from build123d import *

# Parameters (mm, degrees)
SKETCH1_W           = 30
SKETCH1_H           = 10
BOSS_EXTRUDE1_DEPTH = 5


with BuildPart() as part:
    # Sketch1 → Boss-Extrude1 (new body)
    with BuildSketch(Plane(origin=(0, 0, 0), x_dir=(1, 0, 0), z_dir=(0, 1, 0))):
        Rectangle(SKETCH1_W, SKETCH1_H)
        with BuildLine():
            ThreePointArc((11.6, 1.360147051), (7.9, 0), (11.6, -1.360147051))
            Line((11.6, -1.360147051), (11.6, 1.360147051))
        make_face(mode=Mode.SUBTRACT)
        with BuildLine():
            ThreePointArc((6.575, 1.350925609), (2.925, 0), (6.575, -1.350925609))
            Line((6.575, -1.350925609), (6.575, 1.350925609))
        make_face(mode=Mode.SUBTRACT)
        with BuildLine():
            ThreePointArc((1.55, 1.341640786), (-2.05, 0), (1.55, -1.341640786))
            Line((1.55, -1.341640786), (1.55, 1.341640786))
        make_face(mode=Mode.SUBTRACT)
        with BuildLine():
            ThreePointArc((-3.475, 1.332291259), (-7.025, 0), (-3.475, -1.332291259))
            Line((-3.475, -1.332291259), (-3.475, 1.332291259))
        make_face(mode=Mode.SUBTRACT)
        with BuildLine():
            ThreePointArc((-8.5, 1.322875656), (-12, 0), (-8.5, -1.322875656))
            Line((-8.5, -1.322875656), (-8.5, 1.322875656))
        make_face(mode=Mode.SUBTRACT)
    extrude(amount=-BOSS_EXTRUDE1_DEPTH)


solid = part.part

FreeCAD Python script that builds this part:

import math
import FreeCAD as App
import Part
import Sketcher


def add_polygon(sketch, points):
    """Adds a closed chain of lines whose ends are joined by coincident constraints."""
    first, n = sketch.GeometryCount, len(points)
    for a, b in zip(points, points[1:] + points[:1]):
        sketch.addGeometry(Part.LineSegment(App.Vector(*a, 0), App.Vector(*b, 0)), False)
    for i in range(n):
        sketch.addConstraint(Sketcher.Constraint("Coincident", first + i, 2, first + (i + 1) % n, 1))

doc = App.newDocument("Part")
body = doc.addObject("PartDesign::Body", "Body")

# Sketch on XZ plane
sketch1 = body.newObject("Sketcher::SketchObject", "Sketch")
sketch1.AttachmentSupport = (doc.getObject("XZ_Plane"), [""])
sketch1.MapMode = "FlatFace"
add_polygon(sketch1, [(-15, -5), (-15, 5), (15, 5), (15, -5)])  # lines 0-3
sketch1.addGeometry(Part.ArcOfCircle(Part.Circle(App.Vector(-10, 0, 0), App.Vector(0, 0, 1), 2), math.radians(41), math.radians(319)), False)  # 4
sketch1.addGeometry(Part.LineSegment(App.Vector(-8.5, -1.3, 0), App.Vector(-8.5, 1.3, 0)), False)  # 5
sketch1.addGeometry(Part.ArcOfCircle(Part.Circle(App.Vector(-5, 0, 0), App.Vector(0, 0, 1), 2), math.radians(41), math.radians(319)), False)  # 6
sketch1.addGeometry(Part.LineSegment(App.Vector(-3.5, -1.3, 0), App.Vector(-3.5, 1.3, 0)), False)  # 7
sketch1.addGeometry(Part.ArcOfCircle(Part.Circle(App.Vector(0, 0, 0), App.Vector(0, 0, 1), 2), math.radians(41), math.radians(319)), False)  # 8
sketch1.addGeometry(Part.LineSegment(App.Vector(1.6, -1.3, 0), App.Vector(1.6, 1.3, 0)), False)  # 9
sketch1.addGeometry(Part.ArcOfCircle(Part.Circle(App.Vector(5, 0, 0), App.Vector(0, 0, 1), 2.1), math.radians(41), math.radians(319)), False)  # 10
sketch1.addGeometry(Part.LineSegment(App.Vector(6.6, -1.4, 0), App.Vector(6.6, 1.4, 0)), False)  # 11
sketch1.addGeometry(Part.ArcOfCircle(Part.Circle(App.Vector(10, 0, 0), App.Vector(0, 0, 1), 2.1), math.radians(40), math.radians(320)), False)  # 12
sketch1.addGeometry(Part.LineSegment(App.Vector(11.6, -1.4, 0), App.Vector(11.6, 1.4, 0)), False)  # 13
sketch1.addConstraint([
    Sketcher.Constraint("Coincident", 4, 1, 5, 2),
    Sketcher.Constraint("Coincident", 5, 1, 4, 2),
    Sketcher.Constraint("Coincident", 6, 1, 7, 2),
    Sketcher.Constraint("Coincident", 7, 1, 6, 2),
    Sketcher.Constraint("Coincident", 8, 1, 9, 2),
    Sketcher.Constraint("Coincident", 9, 1, 8, 2),
    Sketcher.Constraint("Coincident", 10, 1, 11, 2),
    Sketcher.Constraint("Coincident", 11, 1, 10, 2),
    Sketcher.Constraint("Coincident", 12, 1, 13, 2),
    Sketcher.Constraint("Coincident", 13, 1, 12, 2),
    Sketcher.Constraint("Vertical", 0),
    Sketcher.Constraint("Horizontal", 1),
    Sketcher.Constraint("Vertical", 2),
    Sketcher.Constraint("Horizontal", 3),
    Sketcher.Constraint("Vertical", 5),
    Sketcher.Constraint("Vertical", 7),
    Sketcher.Constraint("Vertical", 9),
    Sketcher.Constraint("Vertical", 11),
    Sketcher.Constraint("Vertical", 13),
    Sketcher.Constraint("Coincident", 8, 3, -1, 1),
    Sketcher.Constraint("Symmetric", 6, 3, 10, 3, -1, 1),
    Sketcher.Constraint("Symmetric", 4, 3, 12, 3, -1, 1),
    Sketcher.Constraint("Symmetric", 0, 2, 2, 2, -1, 1),
    Sketcher.Constraint("PointOnObject", 4, 3, -1),
    Sketcher.Constraint("PointOnObject", 6, 3, -1),
    Sketcher.Constraint("Radius", 4, 2.0),
    Sketcher.Constraint("Radius", 12, 2.1),
    Sketcher.Constraint("DistanceX", 1, 1, 1, 2, 30.0),
    Sketcher.Constraint("DistanceY", 0, 1, 0, 2, 10.0),
    Sketcher.Constraint("Radius", 8, 2.05),
    Sketcher.Constraint("DistanceX", 4, 3, -1, 1, 10.0),
    Sketcher.Constraint("DistanceX", 6, 3, -1, 1, 5.0),
    Sketcher.Constraint("Radius", 6, 2.025),
    Sketcher.Constraint("Radius", 10, 2.075),
    Sketcher.Constraint("DistanceX", 4, 1, -1, 1, 8.5),
    Sketcher.Constraint("DistanceX", -1, 1, 12, 1, 11.6),
    Sketcher.Constraint("DistanceX", -1, 1, 8, 1, 1.55),
    Sketcher.Constraint("DistanceX", 6, 1, -1, 1, 3.475),
    Sketcher.Constraint("DistanceX", -1, 1, 10, 1, 6.575),
])
pad1 = body.newObject("PartDesign::Pad", "Pad")
pad1.Profile = sketch1
pad1.Length = 5

doc.recompute()
